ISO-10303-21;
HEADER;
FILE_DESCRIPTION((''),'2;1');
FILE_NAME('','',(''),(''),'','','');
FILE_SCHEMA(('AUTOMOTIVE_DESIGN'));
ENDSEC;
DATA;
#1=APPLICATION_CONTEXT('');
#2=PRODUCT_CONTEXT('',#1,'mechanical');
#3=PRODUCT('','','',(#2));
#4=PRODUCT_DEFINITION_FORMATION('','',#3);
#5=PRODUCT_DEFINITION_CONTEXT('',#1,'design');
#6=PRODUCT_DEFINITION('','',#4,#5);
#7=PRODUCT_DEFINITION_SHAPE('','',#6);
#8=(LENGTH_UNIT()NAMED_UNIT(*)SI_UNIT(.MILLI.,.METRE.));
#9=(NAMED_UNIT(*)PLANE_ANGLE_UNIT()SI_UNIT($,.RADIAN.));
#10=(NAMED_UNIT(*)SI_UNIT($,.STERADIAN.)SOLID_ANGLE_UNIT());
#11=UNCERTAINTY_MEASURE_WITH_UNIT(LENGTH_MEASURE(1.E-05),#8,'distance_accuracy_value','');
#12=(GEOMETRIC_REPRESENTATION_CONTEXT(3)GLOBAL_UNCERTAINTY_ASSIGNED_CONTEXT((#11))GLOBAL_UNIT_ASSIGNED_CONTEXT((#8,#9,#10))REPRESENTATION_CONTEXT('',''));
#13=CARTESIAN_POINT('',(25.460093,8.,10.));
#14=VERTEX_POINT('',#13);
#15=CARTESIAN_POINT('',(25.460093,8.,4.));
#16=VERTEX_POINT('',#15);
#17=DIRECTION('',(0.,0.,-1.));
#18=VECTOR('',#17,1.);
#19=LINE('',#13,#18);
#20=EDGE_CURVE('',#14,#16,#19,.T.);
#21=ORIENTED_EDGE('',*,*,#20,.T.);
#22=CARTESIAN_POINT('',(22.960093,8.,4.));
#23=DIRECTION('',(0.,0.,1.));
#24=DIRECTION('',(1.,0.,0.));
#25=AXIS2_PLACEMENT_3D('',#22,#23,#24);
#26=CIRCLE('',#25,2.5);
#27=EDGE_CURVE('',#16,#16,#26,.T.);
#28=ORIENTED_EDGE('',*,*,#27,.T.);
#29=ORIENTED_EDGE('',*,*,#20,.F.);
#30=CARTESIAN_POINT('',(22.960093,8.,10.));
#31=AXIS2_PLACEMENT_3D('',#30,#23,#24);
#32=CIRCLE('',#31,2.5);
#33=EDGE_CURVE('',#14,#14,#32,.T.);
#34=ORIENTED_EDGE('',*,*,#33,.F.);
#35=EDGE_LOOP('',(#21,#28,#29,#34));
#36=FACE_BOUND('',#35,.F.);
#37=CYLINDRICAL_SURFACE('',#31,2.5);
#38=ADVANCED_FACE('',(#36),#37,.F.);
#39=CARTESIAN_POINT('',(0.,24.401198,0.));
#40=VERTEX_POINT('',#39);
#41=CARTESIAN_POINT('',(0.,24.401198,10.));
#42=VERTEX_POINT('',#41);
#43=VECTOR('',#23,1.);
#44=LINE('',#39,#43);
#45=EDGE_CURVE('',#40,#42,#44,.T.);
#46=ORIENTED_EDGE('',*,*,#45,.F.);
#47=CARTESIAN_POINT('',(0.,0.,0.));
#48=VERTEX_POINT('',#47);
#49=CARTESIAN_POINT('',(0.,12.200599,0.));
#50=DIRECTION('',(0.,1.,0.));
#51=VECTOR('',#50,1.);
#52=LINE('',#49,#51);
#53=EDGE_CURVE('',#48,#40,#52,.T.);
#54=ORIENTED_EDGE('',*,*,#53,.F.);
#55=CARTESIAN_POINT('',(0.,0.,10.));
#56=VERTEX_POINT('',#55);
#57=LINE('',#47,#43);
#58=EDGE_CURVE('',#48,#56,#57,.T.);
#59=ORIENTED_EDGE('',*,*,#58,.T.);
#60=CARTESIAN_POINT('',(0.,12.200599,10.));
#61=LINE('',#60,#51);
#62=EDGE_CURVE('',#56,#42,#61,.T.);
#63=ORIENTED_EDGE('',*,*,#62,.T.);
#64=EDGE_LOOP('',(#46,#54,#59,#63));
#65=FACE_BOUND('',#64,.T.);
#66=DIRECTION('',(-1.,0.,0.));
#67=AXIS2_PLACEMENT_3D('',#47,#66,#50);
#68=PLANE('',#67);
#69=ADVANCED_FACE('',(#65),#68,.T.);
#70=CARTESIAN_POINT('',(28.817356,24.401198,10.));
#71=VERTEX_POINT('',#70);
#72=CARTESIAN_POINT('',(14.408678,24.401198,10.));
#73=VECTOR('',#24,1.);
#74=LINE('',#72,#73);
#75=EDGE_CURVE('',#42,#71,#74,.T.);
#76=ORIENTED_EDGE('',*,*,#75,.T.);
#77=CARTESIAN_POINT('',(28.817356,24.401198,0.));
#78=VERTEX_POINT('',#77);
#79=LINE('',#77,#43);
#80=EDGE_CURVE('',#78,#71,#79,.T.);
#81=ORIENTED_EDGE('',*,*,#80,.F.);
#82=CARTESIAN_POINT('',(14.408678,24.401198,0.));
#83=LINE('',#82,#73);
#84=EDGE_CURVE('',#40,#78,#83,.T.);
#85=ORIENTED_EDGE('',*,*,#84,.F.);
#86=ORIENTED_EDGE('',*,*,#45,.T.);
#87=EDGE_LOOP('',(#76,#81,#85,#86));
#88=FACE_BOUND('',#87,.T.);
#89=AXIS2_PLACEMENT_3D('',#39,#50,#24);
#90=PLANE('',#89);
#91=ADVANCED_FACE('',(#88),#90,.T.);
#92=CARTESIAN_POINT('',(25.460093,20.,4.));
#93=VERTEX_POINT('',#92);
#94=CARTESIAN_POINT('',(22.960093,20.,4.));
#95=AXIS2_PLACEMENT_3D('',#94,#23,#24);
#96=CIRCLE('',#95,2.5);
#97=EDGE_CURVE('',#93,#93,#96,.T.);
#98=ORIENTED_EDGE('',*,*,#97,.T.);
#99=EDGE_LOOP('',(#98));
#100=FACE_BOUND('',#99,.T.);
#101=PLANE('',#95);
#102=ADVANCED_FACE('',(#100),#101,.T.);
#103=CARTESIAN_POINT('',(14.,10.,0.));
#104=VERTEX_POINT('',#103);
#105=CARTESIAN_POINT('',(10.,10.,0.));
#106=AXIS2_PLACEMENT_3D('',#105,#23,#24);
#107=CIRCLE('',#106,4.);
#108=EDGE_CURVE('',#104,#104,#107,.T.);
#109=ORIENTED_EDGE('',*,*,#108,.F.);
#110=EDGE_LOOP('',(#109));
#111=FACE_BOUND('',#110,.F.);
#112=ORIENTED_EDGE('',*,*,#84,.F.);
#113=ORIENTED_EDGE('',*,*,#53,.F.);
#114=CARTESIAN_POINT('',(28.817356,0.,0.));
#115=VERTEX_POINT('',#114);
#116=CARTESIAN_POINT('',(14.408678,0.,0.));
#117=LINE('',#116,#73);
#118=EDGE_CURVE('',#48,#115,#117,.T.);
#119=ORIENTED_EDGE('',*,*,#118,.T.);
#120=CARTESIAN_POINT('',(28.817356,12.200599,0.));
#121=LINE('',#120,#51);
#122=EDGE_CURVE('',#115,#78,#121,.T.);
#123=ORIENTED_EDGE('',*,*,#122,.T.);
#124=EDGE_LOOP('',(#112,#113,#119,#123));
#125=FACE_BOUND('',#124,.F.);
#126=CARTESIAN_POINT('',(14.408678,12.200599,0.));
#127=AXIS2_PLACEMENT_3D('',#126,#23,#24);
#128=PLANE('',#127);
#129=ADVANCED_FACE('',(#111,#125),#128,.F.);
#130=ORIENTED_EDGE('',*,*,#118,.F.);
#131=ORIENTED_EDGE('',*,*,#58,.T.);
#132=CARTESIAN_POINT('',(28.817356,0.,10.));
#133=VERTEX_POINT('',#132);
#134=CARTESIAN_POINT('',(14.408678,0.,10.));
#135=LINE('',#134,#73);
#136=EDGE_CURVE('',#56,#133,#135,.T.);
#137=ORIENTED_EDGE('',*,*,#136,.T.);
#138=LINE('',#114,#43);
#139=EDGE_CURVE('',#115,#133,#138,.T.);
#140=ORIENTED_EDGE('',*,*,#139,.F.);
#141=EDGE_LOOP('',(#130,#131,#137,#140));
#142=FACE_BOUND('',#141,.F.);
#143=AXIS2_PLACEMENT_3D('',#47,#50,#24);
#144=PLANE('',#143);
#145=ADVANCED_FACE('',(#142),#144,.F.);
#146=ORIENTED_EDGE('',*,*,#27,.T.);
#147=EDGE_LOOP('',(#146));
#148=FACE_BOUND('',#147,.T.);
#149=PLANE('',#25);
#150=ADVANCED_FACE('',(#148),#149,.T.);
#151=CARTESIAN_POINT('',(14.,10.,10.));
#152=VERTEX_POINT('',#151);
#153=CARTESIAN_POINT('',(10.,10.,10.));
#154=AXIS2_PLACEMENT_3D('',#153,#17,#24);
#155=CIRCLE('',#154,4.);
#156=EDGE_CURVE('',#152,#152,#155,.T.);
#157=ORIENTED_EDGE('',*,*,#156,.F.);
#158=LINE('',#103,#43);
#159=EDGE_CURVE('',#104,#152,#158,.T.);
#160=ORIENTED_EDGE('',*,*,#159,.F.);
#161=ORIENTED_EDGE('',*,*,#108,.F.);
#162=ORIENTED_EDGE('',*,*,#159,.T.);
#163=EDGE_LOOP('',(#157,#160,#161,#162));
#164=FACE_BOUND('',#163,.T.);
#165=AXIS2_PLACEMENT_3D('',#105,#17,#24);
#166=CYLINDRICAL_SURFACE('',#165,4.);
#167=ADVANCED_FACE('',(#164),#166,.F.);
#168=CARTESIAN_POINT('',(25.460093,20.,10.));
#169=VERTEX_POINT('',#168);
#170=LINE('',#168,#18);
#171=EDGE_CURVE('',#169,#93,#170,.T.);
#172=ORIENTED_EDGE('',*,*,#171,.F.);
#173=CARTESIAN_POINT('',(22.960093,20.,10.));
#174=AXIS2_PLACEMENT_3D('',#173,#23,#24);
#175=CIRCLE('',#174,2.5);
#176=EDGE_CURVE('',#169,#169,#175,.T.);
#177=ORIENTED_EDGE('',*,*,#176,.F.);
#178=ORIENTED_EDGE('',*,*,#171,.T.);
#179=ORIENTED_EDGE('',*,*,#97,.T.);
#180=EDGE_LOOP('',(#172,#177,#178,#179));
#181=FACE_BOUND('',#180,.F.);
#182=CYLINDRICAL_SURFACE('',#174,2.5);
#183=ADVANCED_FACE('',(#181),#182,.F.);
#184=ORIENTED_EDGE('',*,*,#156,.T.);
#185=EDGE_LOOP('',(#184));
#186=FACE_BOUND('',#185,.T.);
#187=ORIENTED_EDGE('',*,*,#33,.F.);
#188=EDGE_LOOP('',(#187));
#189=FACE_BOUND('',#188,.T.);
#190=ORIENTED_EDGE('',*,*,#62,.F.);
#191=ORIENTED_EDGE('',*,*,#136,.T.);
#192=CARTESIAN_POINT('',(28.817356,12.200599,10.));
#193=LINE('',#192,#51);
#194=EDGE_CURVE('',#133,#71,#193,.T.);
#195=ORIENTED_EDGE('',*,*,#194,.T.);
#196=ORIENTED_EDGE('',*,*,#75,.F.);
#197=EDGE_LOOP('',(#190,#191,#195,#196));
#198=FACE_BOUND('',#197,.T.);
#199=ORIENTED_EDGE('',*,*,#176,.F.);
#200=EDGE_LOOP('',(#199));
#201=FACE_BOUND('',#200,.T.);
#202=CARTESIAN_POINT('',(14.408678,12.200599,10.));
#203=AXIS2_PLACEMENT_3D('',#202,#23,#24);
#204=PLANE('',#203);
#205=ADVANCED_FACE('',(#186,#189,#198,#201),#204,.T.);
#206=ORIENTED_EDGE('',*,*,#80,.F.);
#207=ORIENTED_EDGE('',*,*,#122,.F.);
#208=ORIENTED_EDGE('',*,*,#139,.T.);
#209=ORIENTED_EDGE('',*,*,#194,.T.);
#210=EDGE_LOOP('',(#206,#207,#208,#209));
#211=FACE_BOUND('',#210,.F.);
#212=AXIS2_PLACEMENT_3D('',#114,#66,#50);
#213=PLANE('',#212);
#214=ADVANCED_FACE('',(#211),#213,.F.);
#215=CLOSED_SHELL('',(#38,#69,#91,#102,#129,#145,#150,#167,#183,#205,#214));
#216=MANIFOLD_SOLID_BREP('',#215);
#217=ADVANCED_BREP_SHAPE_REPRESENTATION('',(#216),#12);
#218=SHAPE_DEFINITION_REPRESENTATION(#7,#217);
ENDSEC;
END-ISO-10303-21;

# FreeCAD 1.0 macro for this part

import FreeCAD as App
import Part
import Sketcher
from FreeCAD import Vector
Q = App.Units.Quantity

doc = App.newDocument("Part")
params = doc.addObject("Spreadsheet::Sheet", "Params")
for row, (alias, value) in enumerate([
    ("pad1_length", "10 mm"),
    ("sketch2_diameter", "8 mm"),
    ("sketch3_diameter", "5 mm"),
    ("pocket2_length", "6 mm"),
], start=1):
    params.set(f"A{row}", alias)
    params.set(f"B{row}", "=" + value)
    params.setAlias(f"B{row}", alias)

body = doc.addObject("PartDesign::Body", "Body")

sketch1 = body.newObject("Sketcher::SketchObject", "Sketch")
sketch1.AttachmentSupport = (doc.getObject("XY_Plane"), [""])
sketch1.MapMode = "FlatFace"
sketch1.addGeometry([
    Part.LineSegment(Vector(0, 24, 0), Vector(0, 0, 0)),
    Part.LineSegment(Vector(0, 0, 0), Vector(29, 0, 0)),
    Part.LineSegment(Vector(29, 0, 0), Vector(29, 24, 0)),
    Part.LineSegment(Vector(29, 24, 0), Vector(0, 24, 0)),
], False)
sketch1.addConstraint([
    Sketcher.Constraint("Coincident", 0, 2, 1, 1),
    Sketcher.Constraint("Coincident", 1, 2, 2, 1),
    Sketcher.Constraint("Coincident", 2, 2, 3, 1),
    Sketcher.Constraint("Coincident", 3, 2, 0, 1),
    Sketcher.Constraint("Vertical", 0),
    Sketcher.Constraint("Horizontal", 1),
    Sketcher.Constraint("Vertical", 2),
    Sketcher.Constraint("Horizontal", 3),
    Sketcher.Constraint("Coincident", 0, 2, -1, 1),
    Sketcher.Constraint("DistanceY", 0, 2, 0, 1, Q("24.401199 mm")),
    Sketcher.Constraint("DistanceX", 1, 1, 1, 2, Q("28.817356 mm")),
])
pad1 = body.newObject("PartDesign::Pad", "Pad")
pad1.Profile = sketch1
pad1.setExpression("Length", "Params.pad1_length")

sketch2 = body.newObject("Sketcher::SketchObject", "Sketch001")
sketch2.AttachmentSupport = (doc.getObject("XY_Plane"), [""])
sketch2.MapMode = "FlatFace"
sketch2.addGeometry(Part.Circle(Vector(10, 10, 0), Vector(0, 0, 1), 4), False)
sketch2.addConstraint([
    Sketcher.Constraint("Diameter", 0, Q("8 mm")),
    Sketcher.Constraint("DistanceX", -1, 1, 0, 3, Q("10 mm")),
    Sketcher.Constraint("DistanceY", -1, 1, 0, 3, Q("10 mm")),
])
sketch2.setExpression("Constraints[0]", "Params.sketch2_diameter")
pocket1 = body.newObject("PartDesign::Pocket", "Pocket")
pocket1.Profile = sketch2
pocket1.Type = "ThroughAll"
pocket1.Reversed = True

sketch3 = body.newObject("Sketcher::SketchObject", "Sketch002")
sketch3.AttachmentSupport = (doc.getObject("XY_Plane"), [""])
sketch3.MapMode = "FlatFace"
sketch3.AttachmentOffset = App.Placement(Vector(0, 0, 10), App.Rotation())
sketch3.addGeometry([
    Part.Circle(Vector(23, 8, 0), Vector(0, 0, 1), 2.5),
    Part.Circle(Vector(23, 20, 0), Vector(0, 0, 1), 2.5),
], False)
sketch3.addConstraint([
    Sketcher.Constraint("Equal", 0, 1),
    Sketcher.Constraint("Vertical", 0, 3, 1, 3),
    Sketcher.Constraint("Diameter", 0, Q("5 mm")),
    Sketcher.Constraint("DistanceY", -1, 1, 0, 3, Q("8 mm")),
    Sketcher.Constraint("DistanceY", -1, 1, 1, 3, Q("20 mm")),
    Sketcher.Constraint("DistanceX", -1, 1, 0, 3, Q("22.960093 mm")),
])
sketch3.setExpression("Constraints[2]", "Params.sketch3_diameter")
pocket2 = body.newObject("PartDesign::Pocket", "Pocket001")
pocket2.Profile = sketch3
pocket2.setExpression("Length", "Params.pocket2_length")

doc.recompute()
